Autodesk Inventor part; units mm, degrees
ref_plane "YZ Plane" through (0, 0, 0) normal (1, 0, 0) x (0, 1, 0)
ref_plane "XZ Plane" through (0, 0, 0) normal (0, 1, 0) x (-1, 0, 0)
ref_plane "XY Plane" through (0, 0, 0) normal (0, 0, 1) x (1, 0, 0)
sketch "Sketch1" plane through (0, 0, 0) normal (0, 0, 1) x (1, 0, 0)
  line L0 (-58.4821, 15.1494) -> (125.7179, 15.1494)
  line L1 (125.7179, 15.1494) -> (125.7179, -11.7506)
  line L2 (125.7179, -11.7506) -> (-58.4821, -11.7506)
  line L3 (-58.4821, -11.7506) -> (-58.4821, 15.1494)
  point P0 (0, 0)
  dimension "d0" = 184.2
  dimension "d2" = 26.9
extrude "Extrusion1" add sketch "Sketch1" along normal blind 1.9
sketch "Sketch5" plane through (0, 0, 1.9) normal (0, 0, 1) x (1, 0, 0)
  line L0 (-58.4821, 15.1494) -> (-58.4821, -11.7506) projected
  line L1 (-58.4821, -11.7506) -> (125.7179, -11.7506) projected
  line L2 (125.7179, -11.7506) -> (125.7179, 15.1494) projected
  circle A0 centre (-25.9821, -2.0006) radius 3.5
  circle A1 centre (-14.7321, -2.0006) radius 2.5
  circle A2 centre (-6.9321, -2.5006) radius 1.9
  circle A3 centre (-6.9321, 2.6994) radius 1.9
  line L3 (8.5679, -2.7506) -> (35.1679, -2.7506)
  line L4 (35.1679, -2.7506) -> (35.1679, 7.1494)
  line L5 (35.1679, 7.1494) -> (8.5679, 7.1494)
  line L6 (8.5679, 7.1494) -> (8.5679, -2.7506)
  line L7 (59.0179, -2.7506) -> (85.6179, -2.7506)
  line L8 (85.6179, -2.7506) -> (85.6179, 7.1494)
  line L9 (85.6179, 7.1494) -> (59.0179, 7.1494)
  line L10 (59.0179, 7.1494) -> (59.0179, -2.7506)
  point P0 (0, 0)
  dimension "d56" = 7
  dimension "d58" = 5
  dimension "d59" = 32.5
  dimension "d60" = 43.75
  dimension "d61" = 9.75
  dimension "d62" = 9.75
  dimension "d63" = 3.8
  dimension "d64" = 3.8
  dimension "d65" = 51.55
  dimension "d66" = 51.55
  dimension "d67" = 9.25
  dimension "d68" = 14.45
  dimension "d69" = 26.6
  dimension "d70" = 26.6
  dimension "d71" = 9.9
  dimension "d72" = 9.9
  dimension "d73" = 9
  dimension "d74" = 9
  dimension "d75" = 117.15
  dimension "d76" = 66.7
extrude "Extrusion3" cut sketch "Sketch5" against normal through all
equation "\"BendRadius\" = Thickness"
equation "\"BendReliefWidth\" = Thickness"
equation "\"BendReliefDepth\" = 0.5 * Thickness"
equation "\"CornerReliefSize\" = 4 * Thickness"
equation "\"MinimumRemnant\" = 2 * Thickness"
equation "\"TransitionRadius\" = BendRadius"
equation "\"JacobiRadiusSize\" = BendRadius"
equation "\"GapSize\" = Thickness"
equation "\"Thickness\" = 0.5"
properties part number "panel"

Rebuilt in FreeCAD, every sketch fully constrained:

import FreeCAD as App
import Part
import Sketcher

V = App.Vector
Q = App.Units.Quantity


def add_polygon(sketch, points):
    """Adds a closed chain of lines whose ends are joined by coincident constraints."""
    first, n = sketch.GeometryCount, len(points)
    for a, b in zip(points, points[1:] + points[:1]):
        sketch.addGeometry(Part.LineSegment(App.Vector(*a, 0), App.Vector(*b, 0)), False)
    for i in range(n):
        sketch.addConstraint(Sketcher.Constraint("Coincident", first + i, 2, first + (i + 1) % n, 1))

doc = App.newDocument("Part")
body = doc.addObject("PartDesign::Body", "Body")

sketch1 = body.newObject("Sketcher::SketchObject", "Sketch")
sketch1.AttachmentSupport = (doc.getObject("XY_Plane"), [""])
sketch1.MapMode = "FlatFace"
add_polygon(sketch1, [(126, 15), (-58, 15), (-58, -12), (126, -12)])
sketch1.addConstraint(Sketcher.Constraint("Horizontal", 0))
sketch1.addConstraint(Sketcher.Constraint("Vertical", 1))
sketch1.addConstraint(Sketcher.Constraint("Horizontal", 2))
sketch1.addConstraint(Sketcher.Constraint("Vertical", 3))
sketch1.addConstraint(Sketcher.Constraint("DistanceX", 0, 2, 0, 1, Q("184.2 mm")))
sketch1.addConstraint(Sketcher.Constraint("DistanceY", 1, 2, 1, 1, Q("26.9 mm")))
sketch1.addConstraint(Sketcher.Constraint("DistanceX", 0, 2, -1, 1, Q("58.482 mm")))
sketch1.addConstraint(Sketcher.Constraint("DistanceY", -1, 1, 0, 2, Q("15.1494 mm")))
pad1 = body.newObject("PartDesign::Pad", "Pad")
pad1.Profile = sketch1
pad1.Length = 1.9

sketch2 = body.newObject("Sketcher::SketchObject", "Sketch001")
sketch2.AttachmentSupport = (doc.getObject("XY_Plane"), [""])
sketch2.MapMode = "FlatFace"
sketch2.AttachmentOffset = App.Placement(V(0, 0, 1.9), App.Rotation())
sketch2.addGeometry(Part.Circle(V(-26, -2, 0), V(0, 0, 1), 3.5), False)
sketch2.addGeometry(Part.Circle(V(-14.7, -2, 0), V(0, 0, 1), 2.5), False)
sketch2.addGeometry(Part.Circle(V(-6.9, -2.5, 0), V(0, 0, 1), 1.9), False)
sketch2.addGeometry(Part.Circle(V(-6.9, 2.7, 0), V(0, 0, 1), 1.9), False)
add_polygon(sketch2, [(8.6, 7.1), (8.6, -2.8), (35.2, -2.8), (35.2, 7.1)])
add_polygon(sketch2, [(59, 7.1), (59, -2.8), (85.6, -2.8), (85.6, 7.1)])
sketch2.addConstraint(Sketcher.Constraint("Vertical", 4))
sketch2.addConstraint(Sketcher.Constraint("Horizontal", 5))
sketch2.addConstraint(Sketcher.Constraint("Vertical", 6))
sketch2.addConstraint(Sketcher.Constraint("Horizontal", 7))
sketch2.addConstraint(Sketcher.Constraint("Vertical", 8))
sketch2.addConstraint(Sketcher.Constraint("Horizontal", 9))
sketch2.addConstraint(Sketcher.Constraint("Vertical", 10))
sketch2.addConstraint(Sketcher.Constraint("Horizontal", 11))
sketch2.addConstraint(Sketcher.Constraint("Equal", 2, 3))
sketch2.addConstraint(Sketcher.Constraint("Horizontal", 0, 3, 1, 3))
sketch2.addConstraint(Sketcher.Constraint("Horizontal", 5, 2, 8, 2))
sketch2.addConstraint(Sketcher.Constraint("Horizontal", 7, 2, 10, 2))
sketch2.addConstraint(Sketcher.Constraint("Vertical", 2, 3, 3, 3))
sketch2.addConstraint(Sketcher.Constraint("Equal", 7, 9))
sketch2.addConstraint(Sketcher.Constraint("Diameter", 0, Q("7 mm")))
sketch2.addConstraint(Sketcher.Constraint("Diameter", 1, Q("5 mm")))
sketch2.addConstraint(Sketcher.Constraint("Diameter", 2, Q("3.8 mm")))
sketch2.addConstraint(Sketcher.Constraint("DistanceX", 5, 1, 5, 2, Q("26.6 mm")))
sketch2.addConstraint(Sketcher.Constraint("DistanceY", 4, 2, 4, 1, Q("9.9 mm")))
sketch2.addConstraint(Sketcher.Constraint("DistanceX", 1, 3, 2, 3, Q("7.8 mm")))
sketch2.addConstraint(Sketcher.Constraint("DistanceY", 2, 3, 1, 3, Q("0.5 mm")))
sketch2.addConstraint(Sketcher.Constraint("DistanceY", 2, 3, 3, 3, Q("5.2 mm")))
sketch2.addConstraint(Sketcher.Constraint("DistanceX", 2, 3, 4, 2, Q("15.5 mm")))
sketch2.addConstraint(Sketcher.Constraint("DistanceX", 0, 3, 1, 3, Q("11.25 mm")))
sketch2.addConstraint(Sketcher.Constraint("DistanceY", 4, 2, 2, 3, Q("0.25 mm")))
sketch2.addConstraint(Sketcher.Constraint("DistanceX", 5, 2, 8, 2, Q("23.85 mm")))
sketch2.addConstraint(Sketcher.Constraint("DistanceX", 0, 3, -1, 1, Q("25.982 mm")))
sketch2.addConstraint(Sketcher.Constraint("DistanceY", 0, 3, -1, 1, Q("2.0006 mm")))
pocket1 = body.newObject("PartDesign::Pocket", "Pocket")
pocket1.Profile = sketch2
pocket1.Type = "ThroughAll"

doc.recompute()
